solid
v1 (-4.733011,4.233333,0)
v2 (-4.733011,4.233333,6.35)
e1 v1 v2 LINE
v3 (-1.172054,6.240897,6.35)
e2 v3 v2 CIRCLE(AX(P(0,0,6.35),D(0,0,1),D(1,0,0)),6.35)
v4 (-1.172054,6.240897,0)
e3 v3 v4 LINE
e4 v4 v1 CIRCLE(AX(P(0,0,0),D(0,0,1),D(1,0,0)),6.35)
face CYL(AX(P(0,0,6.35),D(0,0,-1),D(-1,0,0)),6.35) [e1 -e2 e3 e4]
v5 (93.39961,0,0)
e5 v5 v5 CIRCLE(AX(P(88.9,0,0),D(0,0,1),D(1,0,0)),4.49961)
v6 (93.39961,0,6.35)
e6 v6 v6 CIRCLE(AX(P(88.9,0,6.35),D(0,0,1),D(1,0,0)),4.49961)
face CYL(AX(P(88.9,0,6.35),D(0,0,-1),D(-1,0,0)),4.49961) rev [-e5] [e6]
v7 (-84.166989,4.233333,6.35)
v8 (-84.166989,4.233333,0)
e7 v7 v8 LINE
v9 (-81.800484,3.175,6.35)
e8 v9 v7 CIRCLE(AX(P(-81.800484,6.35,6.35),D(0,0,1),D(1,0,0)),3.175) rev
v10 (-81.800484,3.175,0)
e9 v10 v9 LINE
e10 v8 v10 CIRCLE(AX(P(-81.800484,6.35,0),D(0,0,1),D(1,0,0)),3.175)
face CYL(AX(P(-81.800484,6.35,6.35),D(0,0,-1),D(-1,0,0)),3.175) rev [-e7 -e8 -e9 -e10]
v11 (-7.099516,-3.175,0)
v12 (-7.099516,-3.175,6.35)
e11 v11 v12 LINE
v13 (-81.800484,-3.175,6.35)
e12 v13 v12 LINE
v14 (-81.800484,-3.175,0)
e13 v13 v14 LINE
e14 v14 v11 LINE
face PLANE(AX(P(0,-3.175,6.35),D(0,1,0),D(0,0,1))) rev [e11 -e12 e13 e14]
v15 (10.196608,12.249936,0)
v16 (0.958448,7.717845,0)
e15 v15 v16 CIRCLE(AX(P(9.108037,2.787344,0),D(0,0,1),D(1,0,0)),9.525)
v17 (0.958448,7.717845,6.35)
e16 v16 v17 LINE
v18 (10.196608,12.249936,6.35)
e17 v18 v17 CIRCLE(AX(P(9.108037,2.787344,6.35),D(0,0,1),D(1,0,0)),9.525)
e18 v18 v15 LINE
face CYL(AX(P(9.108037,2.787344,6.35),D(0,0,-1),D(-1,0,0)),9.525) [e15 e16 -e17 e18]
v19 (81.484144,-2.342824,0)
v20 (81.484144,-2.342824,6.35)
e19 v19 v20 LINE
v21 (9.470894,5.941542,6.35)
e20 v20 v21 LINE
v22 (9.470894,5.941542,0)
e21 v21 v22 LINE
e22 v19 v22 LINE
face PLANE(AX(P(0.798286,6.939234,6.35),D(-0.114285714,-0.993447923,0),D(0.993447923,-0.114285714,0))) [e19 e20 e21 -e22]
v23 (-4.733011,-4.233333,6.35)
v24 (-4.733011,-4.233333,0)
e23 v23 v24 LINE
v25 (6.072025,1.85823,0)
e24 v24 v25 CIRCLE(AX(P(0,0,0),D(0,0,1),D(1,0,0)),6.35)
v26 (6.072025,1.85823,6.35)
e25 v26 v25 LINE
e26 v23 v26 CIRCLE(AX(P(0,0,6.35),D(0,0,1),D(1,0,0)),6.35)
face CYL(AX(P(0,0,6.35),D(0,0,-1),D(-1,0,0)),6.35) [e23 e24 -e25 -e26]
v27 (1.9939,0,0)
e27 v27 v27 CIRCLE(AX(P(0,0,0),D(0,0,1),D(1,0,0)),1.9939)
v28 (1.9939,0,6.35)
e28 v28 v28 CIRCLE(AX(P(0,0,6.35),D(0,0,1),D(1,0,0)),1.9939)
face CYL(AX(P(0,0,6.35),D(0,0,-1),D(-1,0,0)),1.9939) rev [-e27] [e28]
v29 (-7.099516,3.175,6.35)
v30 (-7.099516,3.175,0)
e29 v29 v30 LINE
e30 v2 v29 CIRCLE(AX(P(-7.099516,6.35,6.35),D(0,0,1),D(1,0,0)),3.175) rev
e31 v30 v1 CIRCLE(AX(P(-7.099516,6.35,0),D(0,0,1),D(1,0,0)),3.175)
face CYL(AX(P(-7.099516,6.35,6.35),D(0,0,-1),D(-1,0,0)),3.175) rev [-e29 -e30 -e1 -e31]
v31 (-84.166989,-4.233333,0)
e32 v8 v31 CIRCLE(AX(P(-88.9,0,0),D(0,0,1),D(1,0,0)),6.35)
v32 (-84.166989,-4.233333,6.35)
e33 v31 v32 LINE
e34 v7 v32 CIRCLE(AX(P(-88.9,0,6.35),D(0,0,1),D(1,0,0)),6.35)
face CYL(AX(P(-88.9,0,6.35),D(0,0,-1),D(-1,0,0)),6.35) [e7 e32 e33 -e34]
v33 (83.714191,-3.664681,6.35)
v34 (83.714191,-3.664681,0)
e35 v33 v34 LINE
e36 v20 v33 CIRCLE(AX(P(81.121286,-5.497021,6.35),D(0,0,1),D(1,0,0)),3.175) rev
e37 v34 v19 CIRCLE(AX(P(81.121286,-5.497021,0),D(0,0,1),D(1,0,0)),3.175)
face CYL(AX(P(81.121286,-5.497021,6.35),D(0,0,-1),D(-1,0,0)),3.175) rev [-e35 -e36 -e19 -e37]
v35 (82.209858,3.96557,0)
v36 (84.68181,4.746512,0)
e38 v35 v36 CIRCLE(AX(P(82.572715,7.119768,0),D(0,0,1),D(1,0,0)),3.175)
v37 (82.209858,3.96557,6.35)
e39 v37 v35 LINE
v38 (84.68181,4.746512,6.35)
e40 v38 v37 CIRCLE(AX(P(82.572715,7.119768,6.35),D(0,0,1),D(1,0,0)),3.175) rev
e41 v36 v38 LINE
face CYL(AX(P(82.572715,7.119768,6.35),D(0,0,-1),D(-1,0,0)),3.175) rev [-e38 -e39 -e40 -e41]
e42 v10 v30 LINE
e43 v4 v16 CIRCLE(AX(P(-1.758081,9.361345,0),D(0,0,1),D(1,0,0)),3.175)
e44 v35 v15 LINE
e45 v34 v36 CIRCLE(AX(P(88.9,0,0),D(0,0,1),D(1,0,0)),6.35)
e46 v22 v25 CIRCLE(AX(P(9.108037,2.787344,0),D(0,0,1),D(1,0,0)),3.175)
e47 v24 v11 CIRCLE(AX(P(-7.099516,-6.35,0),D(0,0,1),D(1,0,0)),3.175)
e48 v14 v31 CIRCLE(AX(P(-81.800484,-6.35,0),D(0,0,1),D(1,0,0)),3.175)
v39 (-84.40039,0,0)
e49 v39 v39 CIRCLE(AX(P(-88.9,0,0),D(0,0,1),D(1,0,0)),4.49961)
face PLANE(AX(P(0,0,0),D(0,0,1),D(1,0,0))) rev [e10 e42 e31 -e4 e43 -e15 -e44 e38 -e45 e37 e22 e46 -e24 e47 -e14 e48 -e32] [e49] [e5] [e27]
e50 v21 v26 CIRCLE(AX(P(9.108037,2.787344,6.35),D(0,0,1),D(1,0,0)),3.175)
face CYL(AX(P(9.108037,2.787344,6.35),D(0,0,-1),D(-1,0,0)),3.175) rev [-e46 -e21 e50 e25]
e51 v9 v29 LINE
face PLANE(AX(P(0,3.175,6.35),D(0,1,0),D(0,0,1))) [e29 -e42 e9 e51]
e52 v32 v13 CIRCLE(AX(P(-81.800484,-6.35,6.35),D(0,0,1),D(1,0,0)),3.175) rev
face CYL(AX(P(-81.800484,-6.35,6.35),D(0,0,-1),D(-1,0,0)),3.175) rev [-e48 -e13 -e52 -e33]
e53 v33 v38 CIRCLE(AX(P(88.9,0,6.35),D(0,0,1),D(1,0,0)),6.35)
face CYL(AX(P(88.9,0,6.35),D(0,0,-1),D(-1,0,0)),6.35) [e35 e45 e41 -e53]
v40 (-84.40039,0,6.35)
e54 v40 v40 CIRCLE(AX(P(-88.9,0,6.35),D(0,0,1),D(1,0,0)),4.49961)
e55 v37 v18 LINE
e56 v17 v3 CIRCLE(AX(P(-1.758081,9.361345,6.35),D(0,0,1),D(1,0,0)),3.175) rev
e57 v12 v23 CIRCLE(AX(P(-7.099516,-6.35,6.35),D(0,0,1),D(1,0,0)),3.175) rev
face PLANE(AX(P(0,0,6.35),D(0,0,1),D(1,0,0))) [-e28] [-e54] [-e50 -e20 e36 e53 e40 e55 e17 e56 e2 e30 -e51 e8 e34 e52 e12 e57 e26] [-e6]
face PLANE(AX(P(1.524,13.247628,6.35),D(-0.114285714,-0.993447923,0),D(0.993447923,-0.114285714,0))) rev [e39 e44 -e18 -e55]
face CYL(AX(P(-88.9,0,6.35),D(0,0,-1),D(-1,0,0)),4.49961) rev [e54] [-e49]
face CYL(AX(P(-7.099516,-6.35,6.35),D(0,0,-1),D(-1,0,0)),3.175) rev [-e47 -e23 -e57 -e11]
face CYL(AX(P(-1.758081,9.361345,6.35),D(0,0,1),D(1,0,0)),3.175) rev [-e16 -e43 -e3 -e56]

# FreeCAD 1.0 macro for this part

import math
import FreeCAD as App
import Part
import Sketcher
Q = App.Units.Quantity


def edges_at(feature, points):
    """Names of the edges that pass closest to the given points."""
    edges = feature.Shape.Edges
    near = lambda p: min(range(len(edges)), key=lambda i: edges[i].distToShape(Part.Vertex(*p))[0])
    return sorted({f"Edge{near(p) + 1}" for p in points})

doc = App.newDocument("Part")
params = doc.addObject("Spreadsheet::Sheet", "Params")
for row, (alias, value) in enumerate([
    ("sketch1_radius", "0.25 in"),
    ("sketch1_diameter", "0.157 in"),
    ("sketch1_radius2", "0.125 in"),
    ("sketch1_radius3", "0.375 in"),
    ("pad1_length", "0.25 in"),
    ("fillet_radius", "0.125 in"),
], start=1):
    params.set(f"A{row}", alias)
    params.set(f"B{row}", "=" + value)
    params.setAlias(f"B{row}", alias)

body = doc.addObject("PartDesign::Body", "Body")

# Sketch on XY plane
sketch1 = doc.addObject("Sketcher::SketchObject", "Sketch")
body.addObject(sketch1)
sketch1.AttachmentSupport = (doc.XY_Plane, [""])
sketch1.MapMode = "FlatFace"
sketch1.addGeometry([
    Part.LineSegment(App.Vector(-83.4, -3.2, 0), App.Vector(-5.5, -3.2, 0)),  # 0
    Part.ArcOfCircle(Part.Circle(App.Vector(0, 0, 0), App.Vector(0, 0, 1), 6.3), math.radians(-150), math.radians(17)),  # 1
    Part.ArcOfCircle(Part.Circle(App.Vector(9.1, 2.8, 0), App.Vector(0, 0, 1), 3.2), math.radians(83), math.radians(197)),  # 2
    Part.LineSegment(App.Vector(9.5, 5.9, 0), App.Vector(83.1, -2.5, 0)),  # 3
    Part.ArcOfCircle(Part.Circle(App.Vector(88.9, 0, 0), App.Vector(0, 0, 1), 6.3), math.radians(-157), math.radians(143)),  # 4
    Part.LineSegment(App.Vector(83.8, 3.8, 0), App.Vector(10.2, 12.2, 0)),  # 5
    Part.ArcOfCircle(Part.Circle(App.Vector(9.1, 2.8, 0), App.Vector(0, 0, 1), 9.5), math.radians(83), math.radians(158)),  # 6
    Part.ArcOfCircle(Part.Circle(App.Vector(0, 0, 0), App.Vector(0, 0, 1), 6.3), math.radians(88), math.radians(150)),  # 7
    Part.LineSegment(App.Vector(-5.5, 3.2, 0), App.Vector(-83.4, 3.2, 0)),  # 8
    Part.ArcOfCircle(Part.Circle(App.Vector(-88.9, 0, 0), App.Vector(0, 0, 1), 6.3), math.radians(30), math.radians(330)),  # 9
    Part.Circle(App.Vector(-88.9, 0, 0), App.Vector(0, 0, 1), 4.5),  # 10
    Part.Circle(App.Vector(0, 0, 0), App.Vector(0, 0, 1), 2),  # 11
    Part.Circle(App.Vector(88.9, 0, 0), App.Vector(0, 0, 1), 4.5),  # 12
], False)
sketch1.addConstraint([
    Sketcher.Constraint("Coincident", 0, 2, 1, 1),
    Sketcher.Constraint("Tangent", 1, 2, 2, 2),
    Sketcher.Constraint("Tangent", 2, 1, 3, 1),
    Sketcher.Constraint("Coincident", 3, 2, 4, 1),
    Sketcher.Constraint("Coincident", 4, 2, 5, 1),
    Sketcher.Constraint("Tangent", 5, 2, 6, 1),
    Sketcher.Constraint("Coincident", 6, 2, 7, 1),
    Sketcher.Constraint("Coincident", 7, 2, 8, 1),
    Sketcher.Constraint("Coincident", 8, 2, 9, 1),
    Sketcher.Constraint("Coincident", 9, 2, 0, 1),
    Sketcher.Constraint("Horizontal", 0),
    Sketcher.Constraint("Horizontal", 8),
    Sketcher.Constraint("Coincident", 1, 3, -1, 1),
    Sketcher.Constraint("Coincident", 7, 3, -1, 1),
    Sketcher.Constraint("Coincident", 11, 3, -1, 1),
    Sketcher.Constraint("Coincident", 6, 3, 2, 3),
    Sketcher.Constraint("Coincident", 10, 3, 9, 3),
    Sketcher.Constraint("Coincident", 12, 3, 4, 3),
    Sketcher.Constraint("Equal", 1, 4),
    Sketcher.Constraint("Equal", 4, 7),
    Sketcher.Constraint("Equal", 7, 9),
    Sketcher.Constraint("Equal", 10, 12),
    Sketcher.Constraint("Symmetric", 4, 3, 9, 3, -1, 1),
    Sketcher.Constraint("Symmetric", 8, 2, 9, 2, -1),
    Sketcher.Constraint("Parallel", 3, 5),
    Sketcher.Constraint("Equal", 3, 5),
    Sketcher.Constraint("Radius", 1, Q("0.25 in")),
    Sketcher.Constraint("Diameter", 11, Q("0.157 in")),
    Sketcher.Constraint("Radius", 2, Q("0.125 in")),
    Sketcher.Constraint("Radius", 6, Q("0.375 in")),
    Sketcher.Constraint("DistanceX", 9, 3, 4, 3, Q("7 in")),
    Sketcher.Constraint("Diameter", 10, Q("0.3543 in")),
    Sketcher.Constraint("DistanceY", 0, 2, 7, 2, Q("0.25 in")),
    Sketcher.Constraint("DistanceX", 0, 2, 2, 3, 14.607298),
])
sketch1.setExpression("Constraints[26]", "Params.sketch1_radius")
sketch1.setExpression("Constraints[27]", "Params.sketch1_diameter")
sketch1.setExpression("Constraints[28]", "Params.sketch1_radius2")
sketch1.setExpression("Constraints[29]", "Params.sketch1_radius3")
pad1 = doc.addObject("PartDesign::Pad", "Pad")
body.addObject(pad1)
pad1.Profile = sketch1
pad1.setExpression("Length", "Params.pad1_length")
doc.recompute()

fillet = doc.addObject("PartDesign::Fillet", "Fillet")
body.addObject(fillet)
fillet.Base = (pad1, edges_at(pad1, [
    (-5.499, -3.175, 3.175),
    (-83.401, -3.175, 3.175),
    (-83.401, 3.175, 3.175),
    (-5.499, 3.175, 3.175),
    (0.272, 6.344, 3.175),
    (83.8, 3.783, 3.175),
    (83.074, -2.526, 3.175),
]))
fillet.setExpression("Radius", "Params.fillet_radius")

doc.recompute()
